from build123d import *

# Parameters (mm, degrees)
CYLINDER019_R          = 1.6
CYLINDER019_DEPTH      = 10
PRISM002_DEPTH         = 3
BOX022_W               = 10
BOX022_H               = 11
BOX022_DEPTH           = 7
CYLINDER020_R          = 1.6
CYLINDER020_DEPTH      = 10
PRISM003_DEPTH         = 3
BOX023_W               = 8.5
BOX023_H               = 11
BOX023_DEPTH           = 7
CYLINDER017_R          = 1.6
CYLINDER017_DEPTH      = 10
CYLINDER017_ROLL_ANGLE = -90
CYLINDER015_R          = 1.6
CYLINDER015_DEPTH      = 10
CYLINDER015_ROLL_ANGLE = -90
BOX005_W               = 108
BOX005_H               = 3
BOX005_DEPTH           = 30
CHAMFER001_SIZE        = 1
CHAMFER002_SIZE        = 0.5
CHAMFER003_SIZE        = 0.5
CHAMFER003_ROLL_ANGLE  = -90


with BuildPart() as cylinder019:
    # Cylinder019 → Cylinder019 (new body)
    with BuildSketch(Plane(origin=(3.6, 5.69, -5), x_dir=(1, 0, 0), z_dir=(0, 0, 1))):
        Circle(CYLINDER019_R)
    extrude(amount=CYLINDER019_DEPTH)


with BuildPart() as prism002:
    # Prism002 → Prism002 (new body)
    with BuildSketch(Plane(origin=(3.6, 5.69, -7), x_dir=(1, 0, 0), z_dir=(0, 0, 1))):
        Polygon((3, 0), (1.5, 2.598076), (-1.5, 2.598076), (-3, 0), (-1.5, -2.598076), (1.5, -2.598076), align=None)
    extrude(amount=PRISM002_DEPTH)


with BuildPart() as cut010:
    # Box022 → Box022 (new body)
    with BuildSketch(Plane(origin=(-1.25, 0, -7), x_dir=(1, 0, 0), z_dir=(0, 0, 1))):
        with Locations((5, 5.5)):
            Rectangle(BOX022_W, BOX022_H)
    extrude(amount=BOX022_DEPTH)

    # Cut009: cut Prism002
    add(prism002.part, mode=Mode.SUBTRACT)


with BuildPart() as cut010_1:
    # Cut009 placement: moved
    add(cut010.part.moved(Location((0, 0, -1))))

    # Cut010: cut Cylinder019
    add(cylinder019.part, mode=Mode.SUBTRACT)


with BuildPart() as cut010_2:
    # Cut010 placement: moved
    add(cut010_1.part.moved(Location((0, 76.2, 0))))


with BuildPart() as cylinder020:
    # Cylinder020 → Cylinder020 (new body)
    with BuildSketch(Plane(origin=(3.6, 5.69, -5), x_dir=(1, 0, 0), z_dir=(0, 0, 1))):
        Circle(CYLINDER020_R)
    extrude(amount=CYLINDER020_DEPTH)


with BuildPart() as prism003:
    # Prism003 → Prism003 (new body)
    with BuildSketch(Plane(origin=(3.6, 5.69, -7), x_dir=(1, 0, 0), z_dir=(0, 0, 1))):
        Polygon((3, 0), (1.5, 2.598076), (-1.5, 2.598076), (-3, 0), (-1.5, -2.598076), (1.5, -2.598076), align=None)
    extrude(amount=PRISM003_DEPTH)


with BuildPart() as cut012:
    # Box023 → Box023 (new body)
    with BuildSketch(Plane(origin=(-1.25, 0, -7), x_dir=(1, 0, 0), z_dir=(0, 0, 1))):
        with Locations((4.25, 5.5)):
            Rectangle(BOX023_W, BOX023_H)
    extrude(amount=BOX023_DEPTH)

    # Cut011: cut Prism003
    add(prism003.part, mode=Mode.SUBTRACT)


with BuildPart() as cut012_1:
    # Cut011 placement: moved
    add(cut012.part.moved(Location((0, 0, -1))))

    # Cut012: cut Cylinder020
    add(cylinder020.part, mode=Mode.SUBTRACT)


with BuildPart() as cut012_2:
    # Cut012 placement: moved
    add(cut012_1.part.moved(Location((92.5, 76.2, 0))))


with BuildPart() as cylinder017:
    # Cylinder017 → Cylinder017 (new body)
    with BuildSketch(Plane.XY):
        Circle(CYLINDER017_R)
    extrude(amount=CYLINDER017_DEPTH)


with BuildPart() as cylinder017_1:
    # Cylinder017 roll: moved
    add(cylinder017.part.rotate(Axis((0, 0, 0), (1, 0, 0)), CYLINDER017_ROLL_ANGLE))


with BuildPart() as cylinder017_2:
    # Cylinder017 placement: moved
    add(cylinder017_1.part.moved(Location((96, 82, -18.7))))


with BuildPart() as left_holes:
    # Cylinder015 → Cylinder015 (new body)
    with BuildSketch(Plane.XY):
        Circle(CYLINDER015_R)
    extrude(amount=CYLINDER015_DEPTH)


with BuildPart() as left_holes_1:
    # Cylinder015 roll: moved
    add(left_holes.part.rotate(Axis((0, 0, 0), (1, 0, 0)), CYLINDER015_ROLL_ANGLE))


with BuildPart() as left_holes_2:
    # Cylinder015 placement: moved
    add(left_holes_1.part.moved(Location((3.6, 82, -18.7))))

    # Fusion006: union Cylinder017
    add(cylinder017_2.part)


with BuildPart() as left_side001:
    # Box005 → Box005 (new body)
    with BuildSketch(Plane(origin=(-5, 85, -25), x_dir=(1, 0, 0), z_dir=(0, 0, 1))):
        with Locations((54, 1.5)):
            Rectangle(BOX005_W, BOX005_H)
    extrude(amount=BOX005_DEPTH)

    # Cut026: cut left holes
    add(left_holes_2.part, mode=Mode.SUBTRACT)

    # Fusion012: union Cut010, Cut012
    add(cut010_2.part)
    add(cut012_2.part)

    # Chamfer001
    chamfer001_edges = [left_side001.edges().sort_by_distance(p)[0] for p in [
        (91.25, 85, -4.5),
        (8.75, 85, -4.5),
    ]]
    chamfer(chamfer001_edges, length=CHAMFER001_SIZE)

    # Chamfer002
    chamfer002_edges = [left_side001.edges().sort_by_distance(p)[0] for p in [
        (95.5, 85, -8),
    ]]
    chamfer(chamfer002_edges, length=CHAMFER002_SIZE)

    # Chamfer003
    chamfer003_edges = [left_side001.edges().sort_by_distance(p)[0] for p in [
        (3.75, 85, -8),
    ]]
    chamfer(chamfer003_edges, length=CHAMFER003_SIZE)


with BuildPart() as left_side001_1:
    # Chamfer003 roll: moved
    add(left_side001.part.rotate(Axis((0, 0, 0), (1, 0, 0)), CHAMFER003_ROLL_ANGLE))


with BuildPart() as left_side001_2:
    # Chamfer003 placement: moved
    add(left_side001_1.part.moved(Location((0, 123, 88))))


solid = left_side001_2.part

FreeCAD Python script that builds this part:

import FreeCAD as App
import Part
import Sketcher

V = App.Vector
Q = App.Units.Quantity


def edges_at(feature, points):
    """Names of the edges that pass closest to the given points."""
    edges = feature.Shape.Edges
    near = lambda p: min(range(len(edges)), key=lambda i: edges[i].distToShape(Part.Vertex(*p))[0])
    return sorted({f"Edge{near(p) + 1}" for p in points})


def add_polygon(sketch, points):
    """Adds a closed chain of lines whose ends are joined by coincident constraints."""
    first, n = sketch.GeometryCount, len(points)
    for a, b in zip(points, points[1:] + points[:1]):
        sketch.addGeometry(Part.LineSegment(App.Vector(*a, 0), App.Vector(*b, 0)), False)
    for i in range(n):
        sketch.addConstraint(Sketcher.Constraint("Coincident", first + i, 2, first + (i + 1) % n, 1))

doc = App.newDocument("Part")
params = doc.addObject("Spreadsheet::Sheet", "Params")
for row, (alias, value) in enumerate([
    ("sketch1_diameter", "3.2 mm"),
    ("pad1_length", "10 mm"),
    ("sketch2_width", "3 mm"),
    ("sketch2_length", "3 mm"),
    ("pad2_length", "3 mm"),
    ("sketch3_width", "10 mm"),
    ("sketch3_height", "11 mm"),
    ("pad3_length", "7 mm"),
    ("sketch4_diameter", "3.2 mm"),
    ("pad4_length", "10 mm"),
    ("sketch5_width", "3 mm"),
    ("sketch5_length", "3 mm"),
    ("pad5_length", "3 mm"),
    ("sketch6_height", "11 mm"),
    ("sketch6_width", "8.5 mm"),
    ("pad6_length", "7 mm"),
    ("sketch7_diameter", "3.2 mm"),
    ("pad7_length", "10 mm"),
    ("sketch8_diameter", "3.2 mm"),
    ("pad8_length", "10 mm"),
    ("sketch9_width", "108 mm"),
    ("sketch9_height", "3 mm"),
    ("pad9_length", "30 mm"),
    ("chamfer_size", "1 mm"),
    ("chamfer2_size", "0.5 mm"),
    ("chamfer3_size", "0.5 mm"),
], start=1):
    params.set(f"A{row}", alias)
    params.set(f"B{row}", "=" + value)
    params.setAlias(f"B{row}", alias)

body = doc.addObject("PartDesign::Body", "Body")

# Sketch on XY plane
sketch1 = body.newObject("Sketcher::SketchObject", "Sketch")
sketch1.AttachmentSupport = (doc.getObject("XY_Plane"), [""])
sketch1.MapMode = "FlatFace"
sketch1.AttachmentOffset = App.Placement(V(0, 0, -5), App.Rotation())
sketch1.addGeometry(Part.Circle(V(3.6, 5.69, 0), V(0, 0, 1), 1.6), False)
sketch1.addConstraint([
    Sketcher.Constraint("Diameter", 0, 3.2),
    Sketcher.Constraint("DistanceX", -1, 1, 0, 3, 3.6),
    Sketcher.Constraint("DistanceY", -1, 1, 0, 3, 5.69),
])
sketch1.setExpression("Constraints[0]", "Params.sketch1_diameter")
pad1 = body.newObject("PartDesign::Pad", "Pad")
pad1.Profile = sketch1
pad1.setExpression("Length", "Params.pad1_length")
body2 = doc.addObject("PartDesign::Body", "Body001")

# Sketch on XY plane
sketch2 = body2.newObject("Sketcher::SketchObject", "Sketch001")
sketch2.AttachmentSupport = (doc.getObject("XY_Plane001"), [""])
sketch2.MapMode = "FlatFace"
sketch2.AttachmentOffset = App.Placement(V(0, 0, -7), App.Rotation())
add_polygon(sketch2, [(6.6, 5.69), (5.1, 8.288076), (2.1, 8.288076), (0.6, 5.69), (2.1, 3.091924), (5.1, 3.091924)])  # lines 0-5
sketch2.addConstraint([
    Sketcher.Constraint("Horizontal", 1),
    Sketcher.Constraint("Horizontal", 4),
    Sketcher.Constraint("Parallel", 0, 3),
    Sketcher.Constraint("Parallel", 2, 5),
    Sketcher.Constraint("Horizontal", 2, 2, 5, 2),
    Sketcher.Constraint("Vertical", 1, 2, 3, 2),
    Sketcher.Constraint("Vertical", 0, 2, 4, 2),
    Sketcher.Constraint("DistanceX", 1, 2, 1, 1, 3.0),
    Sketcher.Constraint("Angle", 0, Q("120.000002 deg")),
    Sketcher.Constraint("Distance", 0, 3.0),
    Sketcher.Constraint("DistanceX", -1, 1, 0, 2, 5.1),
    Sketcher.Constraint("DistanceY", -1, 1, 2, 2, 5.69),
])
sketch2.setExpression("Constraints[13]", "Params.sketch2_width")
sketch2.setExpression("Constraints[15]", "Params.sketch2_length")
pad2 = body2.newObject("PartDesign::Pad", "Pad001")
pad2.Profile = sketch2
pad2.setExpression("Length", "Params.pad2_length")
body3 = doc.addObject("PartDesign::Body", "Body002")

# Sketch on XY plane
sketch3 = body3.newObject("Sketcher::SketchObject", "Sketch002")
sketch3.AttachmentSupport = (doc.getObject("XY_Plane002"), [""])
sketch3.MapMode = "FlatFace"
sketch3.AttachmentOffset = App.Placement(V(0, 0, -7), App.Rotation())
add_polygon(sketch3, [(-1.25, 11), (-1.25, 0), (8.75, 0), (8.75, 11)])  # lines 0-3
sketch3.addConstraint([
    Sketcher.Constraint("Vertical", 0),
    Sketcher.Constraint("Horizontal", 1),
    Sketcher.Constraint("Vertical", 2),
    Sketcher.Constraint("Horizontal", 3),
    Sketcher.Constraint("PointOnObject", 0, 2, -1),
    Sketcher.Constraint("DistanceX", 1, 1, 1, 2, 10.0),
    Sketcher.Constraint("DistanceY", 0, 2, 0, 1, 11.0),
    Sketcher.Constraint("DistanceX", 0, 2, -1, 1, 1.25),
])
sketch3.setExpression("Constraints[9]", "Params.sketch3_width")
sketch3.setExpression("Constraints[10]", "Params.sketch3_height")
pad3 = body3.newObject("PartDesign::Pad", "Pad002")
pad3.Profile = sketch3
pad3.setExpression("Length", "Params.pad3_length")
doc.recompute()

boolean = body3.newObject("PartDesign::Boolean", "Boolean")
boolean.Type = "Cut"
boolean.addObjects([body2])
body4 = doc.addObject("PartDesign::Body", "Body003")
doc.recompute()

body3.Placement = App.Placement(V(0, 0, -1), App.Rotation(V(0, 0, 1), 0))
boolean2 = body4.newObject("PartDesign::Boolean", "Boolean001")
boolean2.Type = "Fuse"
boolean2.addObjects([body3])
doc.recompute()

boolean3 = body4.newObject("PartDesign::Boolean", "Boolean002")
boolean3.Type = "Cut"
boolean3.addObjects([body])
body5 = doc.addObject("PartDesign::Body", "Body004")
doc.recompute()

body4.Placement = App.Placement(V(0, 76.2, 0), App.Rotation(V(0, 0, 1), 0))
boolean4 = body5.newObject("PartDesign::Boolean", "Boolean003")
boolean4.Type = "Fuse"
boolean4.addObjects([body4])
body6 = doc.addObject("PartDesign::Body", "Body005")

# Sketch on XY plane
sketch4 = body6.newObject("Sketcher::SketchObject", "Sketch003")
sketch4.AttachmentSupport = (doc.getObject("XY_Plane005"), [""])
sketch4.MapMode = "FlatFace"
sketch4.AttachmentOffset = App.Placement(V(0, 0, -5), App.Rotation())
sketch4.addGeometry(Part.Circle(V(3.6, 5.69, 0), V(0, 0, 1), 1.6), False)
sketch4.addConstraint([
    Sketcher.Constraint("Diameter", 0, 3.2),
    Sketcher.Constraint("DistanceX", -1, 1, 0, 3, 3.6),
    Sketcher.Constraint("DistanceY", -1, 1, 0, 3, 5.69),
])
sketch4.setExpression("Constraints[0]", "Params.sketch4_diameter")
pad4 = body6.newObject("PartDesign::Pad", "Pad003")
pad4.Profile = sketch4
pad4.setExpression("Length", "Params.pad4_length")
body7 = doc.addObject("PartDesign::Body", "Body006")

# Sketch on XY plane
sketch5 = body7.newObject("Sketcher::SketchObject", "Sketch004")
sketch5.AttachmentSupport = (doc.getObject("XY_Plane006"), [""])
sketch5.MapMode = "FlatFace"
sketch5.AttachmentOffset = App.Placement(V(0, 0, -7), App.Rotation())
add_polygon(sketch5, [(6.6, 5.69), (5.1, 8.288076), (2.1, 8.288076), (0.6, 5.69), (2.1, 3.091924), (5.1, 3.091924)])  # lines 0-5
sketch5.addConstraint([
    Sketcher.Constraint("Horizontal", 1),
    Sketcher.Constraint("Horizontal", 4),
    Sketcher.Constraint("Parallel", 0, 3),
    Sketcher.Constraint("Parallel", 2, 5),
    Sketcher.Constraint("Horizontal", 2, 2, 5, 2),
    Sketcher.Constraint("Vertical", 1, 2, 3, 2),
    Sketcher.Constraint("Vertical", 0, 2, 4, 2),
    Sketcher.Constraint("DistanceX", 1, 2, 1, 1, 3.0),
    Sketcher.Constraint("Angle", 0, Q("120.000002 deg")),
    Sketcher.Constraint("Distance", 0, 3.0),
    Sketcher.Constraint("DistanceX", -1, 1, 0, 2, 5.1),
    Sketcher.Constraint("DistanceY", -1, 1, 2, 2, 5.69),
])
sketch5.setExpression("Constraints[13]", "Params.sketch5_width")
sketch5.setExpression("Constraints[15]", "Params.sketch5_length")
pad5 = body7.newObject("PartDesign::Pad", "Pad004")
pad5.Profile = sketch5
pad5.setExpression("Length", "Params.pad5_length")
body8 = doc.addObject("PartDesign::Body", "Body007")

# Sketch on XY plane
sketch6 = body8.newObject("Sketcher::SketchObject", "Sketch005")
sketch6.AttachmentSupport = (doc.getObject("XY_Plane007"), [""])
sketch6.MapMode = "FlatFace"
sketch6.AttachmentOffset = App.Placement(V(0, 0, -7), App.Rotation())
add_polygon(sketch6, [(-1.25, 11), (-1.25, 0), (7.25, 0), (7.25, 11)])  # lines 0-3
sketch6.addConstraint([
    Sketcher.Constraint("Vertical", 0),
    Sketcher.Constraint("Horizontal", 1),
    Sketcher.Constraint("Vertical", 2),
    Sketcher.Constraint("Horizontal", 3),
    Sketcher.Constraint("PointOnObject", 0, 2, -1),
    Sketcher.Constraint("DistanceY", 0, 2, 0, 1, 11.0),
    Sketcher.Constraint("DistanceX", 1, 1, 1, 2, 8.5),
    Sketcher.Constraint("DistanceX", 0, 2, -1, 1, 1.25),
])
sketch6.setExpression("Constraints[9]", "Params.sketch6_height")
sketch6.setExpression("Constraints[10]", "Params.sketch6_width")
pad6 = body8.newObject("PartDesign::Pad", "Pad005")
pad6.Profile = sketch6
pad6.setExpression("Length", "Params.pad6_length")
doc.recompute()

boolean5 = body8.newObject("PartDesign::Boolean", "Boolean004")
boolean5.Type = "Cut"
boolean5.addObjects([body7])
body9 = doc.addObject("PartDesign::Body", "Body008")
doc.recompute()

body8.Placement = App.Placement(V(0, 0, -1), App.Rotation(V(0, 0, 1), 0))
boolean6 = body9.newObject("PartDesign::Boolean", "Boolean005")
boolean6.Type = "Fuse"
boolean6.addObjects([body8])
doc.recompute()

boolean7 = body9.newObject("PartDesign::Boolean", "Boolean006")
boolean7.Type = "Cut"
boolean7.addObjects([body6])
body10 = doc.addObject("PartDesign::Body", "Body009")
doc.recompute()

body9.Placement = App.Placement(V(92.5, 76.2, 0), App.Rotation(V(0, 0, 1), 0))
boolean8 = body10.newObject("PartDesign::Boolean", "Boolean007")
boolean8.Type = "Fuse"
boolean8.addObjects([body9])
body11 = doc.addObject("PartDesign::Body", "Body010")

# Sketch on XY plane
sketch7 = body11.newObject("Sketcher::SketchObject", "Sketch006")
sketch7.AttachmentSupport = (doc.getObject("XY_Plane010"), [""])
sketch7.MapMode = "FlatFace"
sketch7.addGeometry(Part.Circle(V(0, 0, 0), V(0, 0, 1), 1.6), False)
sketch7.addConstraint([
    Sketcher.Constraint("Coincident", 0, 3, -1, 1),
    Sketcher.Constraint("Diameter", 0, 3.2),
])
sketch7.setExpression("Constraints[1]", "Params.sketch7_diameter")
pad7 = body11.newObject("PartDesign::Pad", "Pad006")
pad7.Profile = sketch7
pad7.setExpression("Length", "Params.pad7_length")
body12 = doc.addObject("PartDesign::Body", "Body011")
doc.recompute()

body11.Placement = App.Placement(V(0, 0, 0), App.Rotation(V(1, 0, 0), 270))
boolean9 = body12.newObject("PartDesign::Boolean", "Boolean008")
boolean9.Type = "Fuse"
boolean9.addObjects([body11])
body13 = doc.addObject("PartDesign::Body", "Body012")
doc.recompute()

body12.Placement = App.Placement(V(96, 82, -18.7), App.Rotation(V(0, 0, 1), 0))
boolean10 = body13.newObject("PartDesign::Boolean", "Boolean009")
boolean10.Type = "Fuse"
boolean10.addObjects([body12])
body14 = doc.addObject("PartDesign::Body", "Body013")

# Sketch on XY plane
sketch8 = body14.newObject("Sketcher::SketchObject", "Sketch007")
sketch8.AttachmentSupport = (doc.getObject("XY_Plane013"), [""])
sketch8.MapMode = "FlatFace"
sketch8.addGeometry(Part.Circle(V(0, 0, 0), V(0, 0, 1), 1.6), False)
sketch8.addConstraint([
    Sketcher.Constraint("Coincident", 0, 3, -1, 1),
    Sketcher.Constraint("Diameter", 0, 3.2),
])
sketch8.setExpression("Constraints[1]", "Params.sketch8_diameter")
pad8 = body14.newObject("PartDesign::Pad", "Pad007")
pad8.Profile = sketch8
pad8.setExpression("Length", "Params.pad8_length")
body15 = doc.addObject("PartDesign::Body", "Body014")
doc.recompute()

body14.Placement = App.Placement(V(0, 0, 0), App.Rotation(V(1, 0, 0), 270))
boolean11 = body15.newObject("PartDesign::Boolean", "Boolean010")
boolean11.Type = "Fuse"
boolean11.addObjects([body14])
body16 = doc.addObject("PartDesign::Body", "Body015")
body16.AllowCompound = True
doc.recompute()

body15.Placement = App.Placement(V(3.6, 82, -18.7), App.Rotation(V(0, 0, 1), 0))
boolean12 = body16.newObject("PartDesign::Boolean", "Boolean011")
boolean12.Type = "Fuse"
boolean12.addObjects([body15])
doc.recompute()

boolean13 = body16.newObject("PartDesign::Boolean", "Boolean012")
boolean13.Type = "Fuse"
boolean13.addObjects([body13])
body17 = doc.addObject("PartDesign::Body", "Body016")

# Sketch on XY plane
sketch9 = body17.newObject("Sketcher::SketchObject", "Sketch008")
sketch9.AttachmentSupport = (doc.getObject("XY_Plane016"), [""])
sketch9.MapMode = "FlatFace"
sketch9.AttachmentOffset = App.Placement(V(0, 0, -25), App.Rotation())
add_polygon(sketch9, [(-5, 88), (-5, 85), (103, 85), (103, 88)])  # lines 0-3
sketch9.addConstraint([
    Sketcher.Constraint("Vertical", 0),
    Sketcher.Constraint("Horizontal", 1),
    Sketcher.Constraint("Vertical", 2),
    Sketcher.Constraint("Horizontal", 3),
    Sketcher.Constraint("DistanceX", 1, 1, 1, 2, 108.0),
    Sketcher.Constraint("DistanceY", 0, 2, 0, 1, 3.0),
    Sketcher.Constraint("DistanceX", 0, 2, -1, 1, 5.0),
    Sketcher.Constraint("DistanceY", -1, 1, 0, 2, 85.0),
])
sketch9.setExpression("Constraints[8]", "Params.sketch9_width")
sketch9.setExpression("Constraints[9]", "Params.sketch9_height")
pad9 = body17.newObject("PartDesign::Pad", "Pad008")
pad9.Profile = sketch9
pad9.setExpression("Length", "Params.pad9_length")
doc.recompute()

boolean14 = body17.newObject("PartDesign::Boolean", "Boolean013")
boolean14.Type = "Cut"
boolean14.addObjects([body16])
doc.recompute()

boolean15 = body17.newObject("PartDesign::Boolean", "Boolean014")
boolean15.Type = "Fuse"
boolean15.addObjects([body5])
doc.recompute()

boolean16 = body17.newObject("PartDesign::Boolean", "Boolean015")
boolean16.Type = "Fuse"
boolean16.addObjects([body10])
doc.recompute()

chamfer = body17.newObject("PartDesign::Chamfer", "Chamfer")
chamfer.Base = (boolean16, edges_at(boolean16, [(91.25, 85, -4.5), (8.75, 85, -4.5)]))
chamfer.setExpression("Size", "Params.chamfer_size")
doc.recompute()

chamfer2 = body17.newObject("PartDesign::Chamfer", "Chamfer001")
chamfer2.Base = (chamfer, edges_at(chamfer, [(95, 85, -8)]))
chamfer2.setExpression("Size", "Params.chamfer2_size")
doc.recompute()

chamfer3 = body17.newObject("PartDesign::Chamfer", "Chamfer002")
chamfer3.Base = (chamfer2, edges_at(chamfer2, [(4.25, 85, -8)]))
chamfer3.setExpression("Size", "Params.chamfer3_size")
body18 = doc.addObject("PartDesign::Body", "Body017")
doc.recompute()

body17.Placement = App.Placement(V(0, 0, 0), App.Rotation(V(1, 0, 0), 270))
boolean17 = body18.newObject("PartDesign::Boolean", "Boolean016")
boolean17.Type = "Fuse"
boolean17.addObjects([body17])
body19 = doc.addObject("PartDesign::Body", "Body018")
doc.recompute()

body18.Placement = App.Placement(V(0, 123, 88), App.Rotation(V(0, 0, 1), 0))
boolean18 = body19.newObject("PartDesign::Boolean", "Boolean017")
boolean18.Type = "Fuse"
boolean18.addObjects([body18])

doc.recompute()
